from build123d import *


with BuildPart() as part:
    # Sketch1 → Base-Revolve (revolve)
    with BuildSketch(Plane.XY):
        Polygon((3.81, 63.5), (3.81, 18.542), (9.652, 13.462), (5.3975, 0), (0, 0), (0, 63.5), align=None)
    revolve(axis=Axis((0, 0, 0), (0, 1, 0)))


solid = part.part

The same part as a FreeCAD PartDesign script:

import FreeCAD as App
import Part
import Sketcher

V = App.Vector
Q = App.Units.Quantity


def add_polygon(sketch, points):
    """Adds a closed chain of lines whose ends are joined by coincident constraints."""
    first, n = sketch.GeometryCount, len(points)
    for a, b in zip(points, points[1:] + points[:1]):
        sketch.addGeometry(Part.LineSegment(App.Vector(*a, 0), App.Vector(*b, 0)), False)
    for i in range(n):
        sketch.addConstraint(Sketcher.Constraint("Coincident", first + i, 2, first + (i + 1) % n, 1))

doc = App.newDocument("Part")
body = doc.addObject("PartDesign::Body", "Body")

sketch1 = doc.addObject("Sketcher::SketchObject", "Sketch")
body.addObject(sketch1)
sketch1.AttachmentSupport = (doc.XY_Plane, [""])
sketch1.MapMode = "FlatFace"
add_polygon(sketch1, [(3.8, 18.5), (3.8, 63.5), (0, 63.5), (0, 0), (5.4, 0), (9.7, 13.5)])
sketch1.addConstraint([
    Sketcher.Constraint("Vertical", 0),
    Sketcher.Constraint("Horizontal", 1),
    Sketcher.Constraint("Vertical", 2),
    Sketcher.Constraint("Horizontal", 3),
    Sketcher.Constraint("Coincident", 2, 2, -1, 1),
    Sketcher.Constraint("DistanceY", 2, 2, 2, 1, Q("2.5 in")),
    Sketcher.Constraint("DistanceX", 1, 2, 1, 1, Q("0.15 in")),
    Sketcher.Constraint("DistanceY", 0, 1, 0, 2, Q("1.77 in")),
    Sketcher.Constraint("DistanceY", 4, 2, 5, 2, Q("0.2 in")),
    Sketcher.Constraint("DistanceX", -1, 1, 4, 2, Q("0.38 in")),
    Sketcher.Constraint("DistanceX", 3, 1, 3, 2, Q("0.2125 in")),
])
revolution = doc.addObject("PartDesign::Revolution", "Revolution")
body.addObject(revolution)
revolution.Profile = sketch1
revolution.ReferenceAxis = (sketch1, ["V_Axis"])
revolution.Angle = 360

doc.recompute()
